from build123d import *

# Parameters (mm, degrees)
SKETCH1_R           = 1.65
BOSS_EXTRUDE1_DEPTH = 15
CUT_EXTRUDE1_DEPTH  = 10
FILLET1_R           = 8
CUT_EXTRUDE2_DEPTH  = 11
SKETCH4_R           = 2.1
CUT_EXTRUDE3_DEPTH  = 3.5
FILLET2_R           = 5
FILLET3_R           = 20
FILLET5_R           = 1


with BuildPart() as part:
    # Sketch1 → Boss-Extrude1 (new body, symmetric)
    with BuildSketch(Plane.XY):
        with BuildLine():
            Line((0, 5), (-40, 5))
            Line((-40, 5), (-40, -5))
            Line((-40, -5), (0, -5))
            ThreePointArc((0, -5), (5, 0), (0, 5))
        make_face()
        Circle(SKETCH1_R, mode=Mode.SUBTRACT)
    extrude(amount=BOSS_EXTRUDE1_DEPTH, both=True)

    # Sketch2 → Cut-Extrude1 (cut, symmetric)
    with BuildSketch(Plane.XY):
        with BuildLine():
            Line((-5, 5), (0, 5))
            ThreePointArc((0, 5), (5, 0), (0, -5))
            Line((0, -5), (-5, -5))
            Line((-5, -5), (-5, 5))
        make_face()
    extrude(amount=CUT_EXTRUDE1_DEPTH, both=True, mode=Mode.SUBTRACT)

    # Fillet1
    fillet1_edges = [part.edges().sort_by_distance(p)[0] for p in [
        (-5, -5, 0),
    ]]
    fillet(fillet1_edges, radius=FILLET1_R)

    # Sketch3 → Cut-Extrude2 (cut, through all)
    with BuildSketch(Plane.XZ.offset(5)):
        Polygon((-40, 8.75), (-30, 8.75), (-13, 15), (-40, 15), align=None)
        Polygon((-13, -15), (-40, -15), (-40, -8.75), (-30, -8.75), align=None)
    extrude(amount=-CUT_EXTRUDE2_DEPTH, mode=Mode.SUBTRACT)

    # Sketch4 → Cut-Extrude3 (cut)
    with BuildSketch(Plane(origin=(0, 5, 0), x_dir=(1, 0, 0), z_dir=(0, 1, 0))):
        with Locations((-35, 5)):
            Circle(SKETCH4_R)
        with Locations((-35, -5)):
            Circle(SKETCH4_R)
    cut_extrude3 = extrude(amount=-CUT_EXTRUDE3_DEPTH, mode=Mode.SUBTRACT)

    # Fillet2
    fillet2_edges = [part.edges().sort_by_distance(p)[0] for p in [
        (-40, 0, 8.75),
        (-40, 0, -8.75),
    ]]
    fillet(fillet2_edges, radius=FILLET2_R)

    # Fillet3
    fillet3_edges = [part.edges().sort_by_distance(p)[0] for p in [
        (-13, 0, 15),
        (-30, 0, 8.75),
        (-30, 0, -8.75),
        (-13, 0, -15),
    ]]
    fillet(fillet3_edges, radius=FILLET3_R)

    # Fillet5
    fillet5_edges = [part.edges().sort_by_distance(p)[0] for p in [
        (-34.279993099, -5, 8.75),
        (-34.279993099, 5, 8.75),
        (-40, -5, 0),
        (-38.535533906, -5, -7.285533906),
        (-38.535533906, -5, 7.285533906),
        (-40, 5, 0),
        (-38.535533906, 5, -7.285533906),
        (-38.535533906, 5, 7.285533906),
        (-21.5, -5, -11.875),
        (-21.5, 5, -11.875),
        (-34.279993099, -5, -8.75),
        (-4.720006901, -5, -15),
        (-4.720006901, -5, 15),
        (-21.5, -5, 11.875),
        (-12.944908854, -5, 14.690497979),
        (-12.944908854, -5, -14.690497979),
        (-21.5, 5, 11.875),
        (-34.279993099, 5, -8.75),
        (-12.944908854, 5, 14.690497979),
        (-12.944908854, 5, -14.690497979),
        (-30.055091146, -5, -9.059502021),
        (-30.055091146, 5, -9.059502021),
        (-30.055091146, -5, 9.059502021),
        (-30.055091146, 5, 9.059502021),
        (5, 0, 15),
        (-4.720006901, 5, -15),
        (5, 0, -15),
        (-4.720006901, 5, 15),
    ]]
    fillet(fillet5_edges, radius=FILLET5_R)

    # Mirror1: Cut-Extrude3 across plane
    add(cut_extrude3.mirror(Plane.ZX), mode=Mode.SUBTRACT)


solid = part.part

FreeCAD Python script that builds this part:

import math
import FreeCAD as App
import Part
import Sketcher

V = App.Vector


def edges_at(feature, points):
    """Names of the edges that pass closest to the given points."""
    edges = feature.Shape.Edges
    near = lambda p: min(range(len(edges)), key=lambda i: edges[i].distToShape(Part.Vertex(*p))[0])
    return sorted({f"Edge{near(p) + 1}" for p in points})

doc = App.newDocument("Part")
params = doc.addObject("Spreadsheet::Sheet", "Params")
for row, (alias, value) in enumerate([
    ("sketch1_radius", "5 mm"),
    ("sketch1_diameter", "3.3 mm"),
    ("sketch1_width", "40 mm"),
    ("pad1_length", "30 mm"),
    ("sketch2_radius", "5 mm"),
    ("sketch2_width", "5 mm"),
    ("pocket1_length", "20 mm"),
    ("fillet_radius", "8 mm"),
    ("sketch3_width", "10 mm"),
    ("sketch3_width2", "27 mm"),
    ("sketch3_height", "6.25 mm"),
    ("sketch4_diameter", "4.2 mm"),
    ("pocket3_length", "3.5 mm"),
    ("fillet2_radius", "5 mm"),
    ("fillet3_radius", "20 mm"),
    ("fillet4_radius", "1 mm"),
], start=1):
    params.set(f"A{row}", alias)
    params.set(f"B{row}", "=" + value)
    params.setAlias(f"B{row}", alias)

body = doc.addObject("PartDesign::Body", "Body")

sketch1 = doc.addObject("Sketcher::SketchObject", "Sketch")
body.addObject(sketch1)
sketch1.AttachmentSupport = (doc.XY_Plane, [""])
sketch1.MapMode = "FlatFace"
sketch1.addGeometry([
    Part.LineSegment(V(0, 5, 0), V(-40, 5, 0)),
    Part.LineSegment(V(-40, 5, 0), V(-40, -5, 0)),
    Part.LineSegment(V(-40, -5, 0), V(0, -5, 0)),
    Part.ArcOfCircle(Part.Circle(V(0, 0, 0), V(0, 0, 1), 5), math.radians(-90), math.radians(90)),
    Part.Circle(V(0, 0, 0), V(0, 0, 1), 1.6),
], False)
sketch1.addConstraint([
    Sketcher.Constraint("Coincident", 0, 2, 1, 1),
    Sketcher.Constraint("Coincident", 1, 2, 2, 1),
    Sketcher.Constraint("Tangent", 2, 2, 3, 1),
    Sketcher.Constraint("Tangent", 3, 2, 0, 1),
    Sketcher.Constraint("Horizontal", 0),
    Sketcher.Constraint("Vertical", 1),
    Sketcher.Constraint("Horizontal", 2),
    Sketcher.Constraint("Coincident", 3, 3, -1, 1),
    Sketcher.Constraint("Coincident", 4, 3, -1, 1),
    Sketcher.Constraint("Radius", 3, 5.0),
    Sketcher.Constraint("Diameter", 4, 3.3),
    Sketcher.Constraint("DistanceX", 0, 2, 0, 1, 40.0),
])
sketch1.setExpression("Constraints[9]", "Params.sketch1_radius")
sketch1.setExpression("Constraints[10]", "Params.sketch1_diameter")
sketch1.setExpression("Constraints[11]", "Params.sketch1_width")
pad1 = doc.addObject("PartDesign::Pad", "Pad")
body.addObject(pad1)
pad1.Profile = sketch1
pad1.setExpression("Length", "Params.pad1_length")
pad1.Midplane = True

sketch2 = doc.addObject("Sketcher::SketchObject", "Sketch001")
body.addObject(sketch2)
sketch2.AttachmentSupport = (doc.XY_Plane, [""])
sketch2.MapMode = "FlatFace"
sketch2.addGeometry([
    Part.LineSegment(V(0, 5, 0), V(-5, 5, 0)),
    Part.LineSegment(V(-5, 5, 0), V(-5, -5, 0)),
    Part.LineSegment(V(-5, -5, 0), V(0, -5, 0)),
    Part.ArcOfCircle(Part.Circle(V(0, 0, 0), V(0, 0, 1), 5), math.radians(-90), math.radians(90)),
], False)
sketch2.addConstraint([
    Sketcher.Constraint("Coincident", 0, 2, 1, 1),
    Sketcher.Constraint("Coincident", 1, 2, 2, 1),
    Sketcher.Constraint("Tangent", 2, 2, 3, 1),
    Sketcher.Constraint("Tangent", 3, 2, 0, 1),
    Sketcher.Constraint("Horizontal", 0),
    Sketcher.Constraint("Vertical", 1),
    Sketcher.Constraint("Horizontal", 2),
    Sketcher.Constraint("Coincident", 3, 3, -1, 1),
    Sketcher.Constraint("Radius", 3, 5.0),
    Sketcher.Constraint("DistanceX", 0, 2, 0, 1, 5.0),
])
sketch2.setExpression("Constraints[8]", "Params.sketch2_radius")
sketch2.setExpression("Constraints[9]", "Params.sketch2_width")
pocket1 = doc.addObject("PartDesign::Pocket", "Pocket")
body.addObject(pocket1)
pocket1.Profile = sketch2
pocket1.setExpression("Length", "Params.pocket1_length")
pocket1.Midplane = True
doc.recompute()

fillet = doc.addObject("PartDesign::Fillet", "Fillet")
body.addObject(fillet)
fillet.Base = (pocket1, edges_at(pocket1, [(-5, -5, 0)]))
fillet.setExpression("Radius", "Params.fillet_radius")

sketch3 = doc.addObject("Sketcher::SketchObject", "Sketch002")
body.addObject(sketch3)
sketch3.AttachmentSupport = (doc.XZ_Plane, [""])
sketch3.MapMode = "FlatFace"
sketch3.AttachmentOffset = App.Placement(V(0, 0, 5), App.Rotation())
sketch3.addGeometry([
    Part.LineSegment(V(-40, 9, 0), V(-30, 9, 0)),
    Part.LineSegment(V(-30, 9, 0), V(-13, 15, 0)),
    Part.LineSegment(V(-13, 15, 0), V(-40, 15, 0)),
    Part.LineSegment(V(-40, 15, 0), V(-40, 9, 0)),
    Part.LineSegment(V(-40, -15, 0), V(-13, -15, 0)),
    Part.LineSegment(V(-13, -15, 0), V(-30, -9, 0)),
    Part.LineSegment(V(-30, -9, 0), V(-40, -9, 0)),
    Part.LineSegment(V(-40, -9, 0), V(-40, -15, 0)),
], False)
sketch3.addConstraint([
    Sketcher.Constraint("Coincident", 0, 2, 1, 1),
    Sketcher.Constraint("Coincident", 1, 2, 2, 1),
    Sketcher.Constraint("Coincident", 2, 2, 3, 1),
    Sketcher.Constraint("Coincident", 3, 2, 0, 1),
    Sketcher.Constraint("Coincident", 4, 2, 5, 1),
    Sketcher.Constraint("Coincident", 5, 2, 6, 1),
    Sketcher.Constraint("Coincident", 6, 2, 7, 1),
    Sketcher.Constraint("Coincident", 7, 2, 4, 1),
    Sketcher.Constraint("Horizontal", 0),
    Sketcher.Constraint("Horizontal", 2),
    Sketcher.Constraint("Vertical", 3),
    Sketcher.Constraint("Horizontal", 4),
    Sketcher.Constraint("Horizontal", 6),
    Sketcher.Constraint("Vertical", 7),
    Sketcher.Constraint("Symmetric", 1, 2, 4, 2, -1),
    Sketcher.Constraint("Symmetric", 0, 2, 5, 2, -1),
    Sketcher.Constraint("Vertical", 3, 2, 6, 2),
    Sketcher.Constraint("DistanceX", 0, 1, 0, 2, 10.0),
    Sketcher.Constraint("DistanceX", 2, 2, 2, 1, 27.0),
    Sketcher.Constraint("DistanceX", 0, 2, -1, 1, 30.0),
    Sketcher.Constraint("DistanceY", -1, 1, 1, 2, 15.0),
    Sketcher.Constraint("DistanceY", 3, 2, 3, 1, 6.25),
])
sketch3.setExpression("Constraints[17]", "Params.sketch3_width")
sketch3.setExpression("Constraints[18]", "Params.sketch3_width2")
sketch3.setExpression("Constraints[21]", "Params.sketch3_height")
pocket2 = doc.addObject("PartDesign::Pocket", "Pocket001")
body.addObject(pocket2)
pocket2.Profile = sketch3
pocket2.Type = "ThroughAll"

sketch4 = doc.addObject("Sketcher::SketchObject", "Sketch003")
body.addObject(sketch4)
sketch4.AttachmentSupport = (doc.XZ_Plane, [""])
sketch4.MapMode = "FlatFace"
sketch4.AttachmentOffset = App.Placement(V(0, 0, -5), App.Rotation())
sketch4.addGeometry([
    Part.Circle(V(-35, -5, 0), V(0, 0, 1), 2.1),
    Part.Circle(V(-35, 5, 0), V(0, 0, 1), 2.1),
], False)
sketch4.addConstraint([
    Sketcher.Constraint("Equal", 0, 1),
    Sketcher.Constraint("Symmetric", 0, 3, 1, 3, -1),
    Sketcher.Constraint("Diameter", 0, 4.2),
    Sketcher.Constraint("DistanceX", 0, 3, -1, 1, 35.0),
    Sketcher.Constraint("DistanceY", 0, 3, -1, 1, 5.0),
])
sketch4.setExpression("Constraints[2]", "Params.sketch4_diameter")
pocket3 = doc.addObject("PartDesign::Pocket", "Pocket002")
body.addObject(pocket3)
pocket3.Profile = sketch4
pocket3.setExpression("Length", "Params.pocket3_length")
pocket3.Reversed = True
doc.recompute()

fillet2 = doc.addObject("PartDesign::Fillet", "Fillet001")
body.addObject(fillet2)
fillet2.Base = (pocket3, edges_at(pocket3, [(-40, 0, 8.75), (-40, 0, -8.75)]))
fillet2.setExpression("Radius", "Params.fillet2_radius")
doc.recompute()

fillet3 = doc.addObject("PartDesign::Fillet", "Fillet002")
body.addObject(fillet3)
fillet3.Base = (fillet2, edges_at(fillet2, [
    (-13, 0, 15),
    (-30, 0, 8.75),
    (-30, 0, -8.75),
    (-13, 0, -15),
]))
fillet3.setExpression("Radius", "Params.fillet3_radius")
doc.recompute()

fillet4 = doc.addObject("PartDesign::Fillet", "Fillet003")
body.addObject(fillet4)
fillet4.Base = (fillet3, edges_at(fillet3, [
    (-34.28, -5, 8.75),
    (-34.28, 5, 8.75),
    (-40, -5, 0),
    (-38.536, -5, -7.286),
    (-38.536, -5, 7.286),
    (-40, 5, 0),
    (-38.536, 5, -7.286),
    (-38.536, 5, 7.286),
    (-21.5, -5, -11.875),
    (-21.5, 5, -11.875),
    (-34.28, -5, -8.75),
    (-4.72, -5, -15),
    (-4.72, -5, 15),
    (-21.5, -5, 11.875),
    (-12.945, -5, 14.69),
    (-12.945, -5, -14.69),
    (-21.5, 5, 11.875),
    (-34.28, 5, -8.75),
    (-12.945, 5, 14.69),
    (-12.945, 5, -14.69),
    (-30.055, -5, -9.06),
    (-30.055, 5, -9.06),
    (-30.055, -5, 9.06),
    (-30.055, 5, 9.06),
    (5, 0, 15),
    (-4.72, 5, -15),
    (5, 0, -15),
    (-4.72, 5, 15),
]))
fillet4.setExpression("Radius", "Params.fillet4_radius")
doc.recompute()

mirrored = doc.addObject("PartDesign::Mirrored", "Mirrored")
body.addObject(mirrored)
mirrored.Originals = [pocket3]
mirrored.MirrorPlane = (doc.XZ_Plane, [""])
body.Tip = mirrored

doc.recompute()
